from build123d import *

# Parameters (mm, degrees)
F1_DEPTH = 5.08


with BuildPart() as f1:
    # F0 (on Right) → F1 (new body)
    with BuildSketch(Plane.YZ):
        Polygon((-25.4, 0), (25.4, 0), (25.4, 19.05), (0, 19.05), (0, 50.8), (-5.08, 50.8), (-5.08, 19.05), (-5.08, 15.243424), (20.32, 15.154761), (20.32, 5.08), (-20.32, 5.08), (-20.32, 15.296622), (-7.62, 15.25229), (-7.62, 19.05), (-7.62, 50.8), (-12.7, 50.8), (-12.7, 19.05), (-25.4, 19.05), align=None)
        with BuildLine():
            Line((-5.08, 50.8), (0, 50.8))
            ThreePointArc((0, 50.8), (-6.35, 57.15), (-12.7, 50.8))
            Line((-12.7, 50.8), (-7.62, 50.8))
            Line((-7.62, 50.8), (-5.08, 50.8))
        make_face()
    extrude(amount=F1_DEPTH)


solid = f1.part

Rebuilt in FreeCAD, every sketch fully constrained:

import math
import FreeCAD as App
import Part
import Sketcher
from FreeCAD import Vector
Q = App.Units.Quantity

doc = App.newDocument("Part")
params = doc.addObject("Spreadsheet::Sheet", "Params")
for row, (alias, value) in enumerate([
    ("sketch1_width", "2 in"),
    ("sketch1_radius", "0.25 in"),
    ("sketch1_width2", "1.6 in"),
    ("sketch1_width3", "0.1 in"),
    ("sketch1_height", "0.75 in"),
    ("pad1_length", "0.2 in"),
], start=1):
    params.set(f"A{row}", alias)
    params.set(f"B{row}", "=" + value)
    params.setAlias(f"B{row}", alias)

body = doc.addObject("PartDesign::Body", "Body")

# Sketch on YZ plane
sketch1 = doc.addObject("Sketcher::SketchObject", "Sketch")
body.addObject(sketch1)
sketch1.AttachmentSupport = (doc.YZ_Plane, [""])
sketch1.MapMode = "FlatFace"
sketch1.addGeometry([
    Part.LineSegment(Vector(-25.4, 0, 0), Vector(25.4, 0, 0)),  # 0
    Part.LineSegment(Vector(25.4, 0, 0), Vector(25.4, 19.05, 0)),  # 1
    Part.LineSegment(Vector(25.4, 19.05, 0), Vector(0, 19.05, 0)),  # 2
    Part.LineSegment(Vector(0, 19.05, 0), Vector(0, 50.8, 0)),  # 3
    Part.ArcOfCircle(Part.Circle(Vector(-6.35, 50.8, 0), Vector(0, 0, 1), 6.35), math.radians(0), math.radians(180)),  # 4
    Part.LineSegment(Vector(-12.7, 50.8, 0), Vector(-12.7, 19.05, 0)),  # 5
    Part.LineSegment(Vector(-12.7, 19.05, 0), Vector(-25.4, 19.05, 0)),  # 6
    Part.LineSegment(Vector(-25.4, 19.05, 0), Vector(-25.4, 0, 0)),  # 7
    Part.LineSegment(Vector(-5.08, 50.8, 0), Vector(-5.08, 15.243424, 0)),  # 8
    Part.LineSegment(Vector(-5.08, 15.243424, 0), Vector(20.32, 15.154761, 0)),  # 9
    Part.LineSegment(Vector(20.32, 15.154761, 0), Vector(20.32, 5.08, 0)),  # 10
    Part.LineSegment(Vector(20.32, 5.08, 0), Vector(-20.32, 5.08, 0)),  # 11
    Part.LineSegment(Vector(-20.32, 5.08, 0), Vector(-20.32, 15.296622, 0)),  # 12
    Part.LineSegment(Vector(-20.32, 15.296622, 0), Vector(-7.62, 15.25229, 0)),  # 13
    Part.LineSegment(Vector(-7.62, 15.25229, 0), Vector(-7.62, 50.8, 0)),  # 14
    Part.LineSegment(Vector(-7.62, 50.8, 0), Vector(-5.08, 50.8, 0)),  # 15
], False)
sketch1.addConstraint([
    Sketcher.Constraint("Coincident", 0, 2, 1, 1),
    Sketcher.Constraint("Coincident", 1, 2, 2, 1),
    Sketcher.Constraint("Coincident", 2, 2, 3, 1),
    Sketcher.Constraint("Tangent", 3, 2, 4, 1),
    Sketcher.Constraint("Tangent", 4, 2, 5, 1),
    Sketcher.Constraint("Coincident", 5, 2, 6, 1),
    Sketcher.Constraint("Coincident", 6, 2, 7, 1),
    Sketcher.Constraint("Coincident", 7, 2, 0, 1),
    Sketcher.Constraint("Coincident", 8, 2, 9, 1),
    Sketcher.Constraint("Coincident", 9, 2, 10, 1),
    Sketcher.Constraint("Coincident", 10, 2, 11, 1),
    Sketcher.Constraint("Coincident", 11, 2, 12, 1),
    Sketcher.Constraint("Coincident", 12, 2, 13, 1),
    Sketcher.Constraint("Coincident", 13, 2, 14, 1),
    Sketcher.Constraint("Coincident", 14, 2, 15, 1),
    Sketcher.Constraint("Coincident", 15, 2, 8, 1),
    Sketcher.Constraint("Horizontal", 0),
    Sketcher.Constraint("Vertical", 1),
    Sketcher.Constraint("Horizontal", 2),
    Sketcher.Constraint("Vertical", 3),
    Sketcher.Constraint("Vertical", 5),
    Sketcher.Constraint("Horizontal", 6),
    Sketcher.Constraint("Vertical", 7),
    Sketcher.Constraint("Vertical", 8),
    Sketcher.Constraint("Vertical", 10),
    Sketcher.Constraint("Horizontal", 11),
    Sketcher.Constraint("Vertical", 12),
    Sketcher.Constraint("Vertical", 14),
    Sketcher.Constraint("Horizontal", 15),
    Sketcher.Constraint("Symmetric", 0, 2, 7, 2, -1, 1),
    Sketcher.Constraint("PointOnObject", 2, 2, -2),
    Sketcher.Constraint("Parallel", 9, 13),
    Sketcher.Constraint("Horizontal", 2, 2, 5, 2),
    Sketcher.Constraint("Horizontal", 4, 2, 14, 2),
    Sketcher.Constraint("DistanceX", 0, 1, 0, 2, Q("2 in")),
    Sketcher.Constraint("Radius", 4, Q("0.25 in")),
    Sketcher.Constraint("DistanceX", 11, 2, 11, 1, Q("1.6 in")),
    Sketcher.Constraint("DistanceX", 15, 1, 15, 2, Q("0.1 in")),
    Sketcher.Constraint("DistanceY", -1, 1, 4, 3, Q("2 in")),
    Sketcher.Constraint("DistanceX", 8, 2, 9, 2, Q("1 in")),
    Sketcher.Constraint("DistanceY", 1, 1, 1, 2, Q("0.75 in")),
    Sketcher.Constraint("DistanceX", 8, 2, -1, 1, Q("0.2 in")),
    Sketcher.Constraint("DistanceY", -1, 1, 10, 2, Q("0.2 in")),
    Sketcher.Constraint("Angle", 9, Q("-0.2 deg")),
    Sketcher.Constraint("DistanceY", 10, 2, 10, 1, Q("10.074761 mm")),
    Sketcher.Constraint("DistanceY", 12, 1, 12, 2, Q("10.216622 mm")),
])
sketch1.setExpression("Constraints[34]", "Params.sketch1_width")
sketch1.setExpression("Constraints[35]", "Params.sketch1_radius")
sketch1.setExpression("Constraints[36]", "Params.sketch1_width2")
sketch1.setExpression("Constraints[37]", "Params.sketch1_width3")
sketch1.setExpression("Constraints[40]", "Params.sketch1_height")
pad1 = doc.addObject("PartDesign::Pad", "Pad")
body.addObject(pad1)
pad1.Profile = sketch1
pad1.setExpression("Length", "Params.pad1_length")

doc.recompute()
